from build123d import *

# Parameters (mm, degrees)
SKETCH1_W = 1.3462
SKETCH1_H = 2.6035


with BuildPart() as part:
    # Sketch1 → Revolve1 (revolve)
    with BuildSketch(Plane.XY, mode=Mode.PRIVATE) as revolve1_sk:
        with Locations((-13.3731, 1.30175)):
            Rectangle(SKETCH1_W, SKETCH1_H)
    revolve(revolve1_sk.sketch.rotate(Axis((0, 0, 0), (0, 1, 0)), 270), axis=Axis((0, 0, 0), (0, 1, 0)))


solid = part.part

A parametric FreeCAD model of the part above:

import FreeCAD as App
import Part
import Sketcher
Q = App.Units.Quantity

doc = App.newDocument("Part")
body = doc.addObject("PartDesign::Body", "Body")

# Sketch on XY plane
sketch1 = body.newObject("Sketcher::SketchObject", "Sketch")
sketch1.AttachmentSupport = (doc.getObject("XY_Plane"), [""])
sketch1.MapMode = "FlatFace"
sketch1.addGeometry(Part.LineSegment(App.Vector(-14.0462, 2.6035, 0), App.Vector(-14.0462, 0, 0)), False)
sketch1.addGeometry(Part.LineSegment(App.Vector(-14.0462, 0, 0), App.Vector(-12.7, 0, 0)), False)
sketch1.addGeometry(Part.LineSegment(App.Vector(-12.7, 0, 0), App.Vector(-12.7, 2.6035, 0)), False)
sketch1.addGeometry(Part.LineSegment(App.Vector(-12.7, 2.6035, 0), App.Vector(-14.0462, 2.6035, 0)), False)
sketch1.addConstraint(Sketcher.Constraint("Coincident", 0, 2, 1, 1))
sketch1.addConstraint(Sketcher.Constraint("Coincident", 1, 2, 2, 1))
sketch1.addConstraint(Sketcher.Constraint("Coincident", 2, 2, 3, 1))
sketch1.addConstraint(Sketcher.Constraint("Coincident", 3, 2, 0, 1))
sketch1.addConstraint(Sketcher.Constraint("Vertical", 0))
sketch1.addConstraint(Sketcher.Constraint("Horizontal", 1))
sketch1.addConstraint(Sketcher.Constraint("Vertical", 2))
sketch1.addConstraint(Sketcher.Constraint("Horizontal", 3))
sketch1.addConstraint(Sketcher.Constraint("PointOnObject", 0, 2, -1))
sketch1.addConstraint(Sketcher.Constraint("DistanceX", 1, 2, -1, 1, Q("0.5 in")))
sketch1.addConstraint(Sketcher.Constraint("DistanceX", 1, 1, 1, 2, Q("0.053 in")))
sketch1.addConstraint(Sketcher.Constraint("DistanceY", 0, 2, 0, 1, Q("0.1025 in")))
revolution = body.newObject("PartDesign::Revolution", "Revolution")
revolution.Profile = sketch1
revolution.ReferenceAxis = (sketch1, ["V_Axis"])
revolution.Angle = 360

doc.recompute()
